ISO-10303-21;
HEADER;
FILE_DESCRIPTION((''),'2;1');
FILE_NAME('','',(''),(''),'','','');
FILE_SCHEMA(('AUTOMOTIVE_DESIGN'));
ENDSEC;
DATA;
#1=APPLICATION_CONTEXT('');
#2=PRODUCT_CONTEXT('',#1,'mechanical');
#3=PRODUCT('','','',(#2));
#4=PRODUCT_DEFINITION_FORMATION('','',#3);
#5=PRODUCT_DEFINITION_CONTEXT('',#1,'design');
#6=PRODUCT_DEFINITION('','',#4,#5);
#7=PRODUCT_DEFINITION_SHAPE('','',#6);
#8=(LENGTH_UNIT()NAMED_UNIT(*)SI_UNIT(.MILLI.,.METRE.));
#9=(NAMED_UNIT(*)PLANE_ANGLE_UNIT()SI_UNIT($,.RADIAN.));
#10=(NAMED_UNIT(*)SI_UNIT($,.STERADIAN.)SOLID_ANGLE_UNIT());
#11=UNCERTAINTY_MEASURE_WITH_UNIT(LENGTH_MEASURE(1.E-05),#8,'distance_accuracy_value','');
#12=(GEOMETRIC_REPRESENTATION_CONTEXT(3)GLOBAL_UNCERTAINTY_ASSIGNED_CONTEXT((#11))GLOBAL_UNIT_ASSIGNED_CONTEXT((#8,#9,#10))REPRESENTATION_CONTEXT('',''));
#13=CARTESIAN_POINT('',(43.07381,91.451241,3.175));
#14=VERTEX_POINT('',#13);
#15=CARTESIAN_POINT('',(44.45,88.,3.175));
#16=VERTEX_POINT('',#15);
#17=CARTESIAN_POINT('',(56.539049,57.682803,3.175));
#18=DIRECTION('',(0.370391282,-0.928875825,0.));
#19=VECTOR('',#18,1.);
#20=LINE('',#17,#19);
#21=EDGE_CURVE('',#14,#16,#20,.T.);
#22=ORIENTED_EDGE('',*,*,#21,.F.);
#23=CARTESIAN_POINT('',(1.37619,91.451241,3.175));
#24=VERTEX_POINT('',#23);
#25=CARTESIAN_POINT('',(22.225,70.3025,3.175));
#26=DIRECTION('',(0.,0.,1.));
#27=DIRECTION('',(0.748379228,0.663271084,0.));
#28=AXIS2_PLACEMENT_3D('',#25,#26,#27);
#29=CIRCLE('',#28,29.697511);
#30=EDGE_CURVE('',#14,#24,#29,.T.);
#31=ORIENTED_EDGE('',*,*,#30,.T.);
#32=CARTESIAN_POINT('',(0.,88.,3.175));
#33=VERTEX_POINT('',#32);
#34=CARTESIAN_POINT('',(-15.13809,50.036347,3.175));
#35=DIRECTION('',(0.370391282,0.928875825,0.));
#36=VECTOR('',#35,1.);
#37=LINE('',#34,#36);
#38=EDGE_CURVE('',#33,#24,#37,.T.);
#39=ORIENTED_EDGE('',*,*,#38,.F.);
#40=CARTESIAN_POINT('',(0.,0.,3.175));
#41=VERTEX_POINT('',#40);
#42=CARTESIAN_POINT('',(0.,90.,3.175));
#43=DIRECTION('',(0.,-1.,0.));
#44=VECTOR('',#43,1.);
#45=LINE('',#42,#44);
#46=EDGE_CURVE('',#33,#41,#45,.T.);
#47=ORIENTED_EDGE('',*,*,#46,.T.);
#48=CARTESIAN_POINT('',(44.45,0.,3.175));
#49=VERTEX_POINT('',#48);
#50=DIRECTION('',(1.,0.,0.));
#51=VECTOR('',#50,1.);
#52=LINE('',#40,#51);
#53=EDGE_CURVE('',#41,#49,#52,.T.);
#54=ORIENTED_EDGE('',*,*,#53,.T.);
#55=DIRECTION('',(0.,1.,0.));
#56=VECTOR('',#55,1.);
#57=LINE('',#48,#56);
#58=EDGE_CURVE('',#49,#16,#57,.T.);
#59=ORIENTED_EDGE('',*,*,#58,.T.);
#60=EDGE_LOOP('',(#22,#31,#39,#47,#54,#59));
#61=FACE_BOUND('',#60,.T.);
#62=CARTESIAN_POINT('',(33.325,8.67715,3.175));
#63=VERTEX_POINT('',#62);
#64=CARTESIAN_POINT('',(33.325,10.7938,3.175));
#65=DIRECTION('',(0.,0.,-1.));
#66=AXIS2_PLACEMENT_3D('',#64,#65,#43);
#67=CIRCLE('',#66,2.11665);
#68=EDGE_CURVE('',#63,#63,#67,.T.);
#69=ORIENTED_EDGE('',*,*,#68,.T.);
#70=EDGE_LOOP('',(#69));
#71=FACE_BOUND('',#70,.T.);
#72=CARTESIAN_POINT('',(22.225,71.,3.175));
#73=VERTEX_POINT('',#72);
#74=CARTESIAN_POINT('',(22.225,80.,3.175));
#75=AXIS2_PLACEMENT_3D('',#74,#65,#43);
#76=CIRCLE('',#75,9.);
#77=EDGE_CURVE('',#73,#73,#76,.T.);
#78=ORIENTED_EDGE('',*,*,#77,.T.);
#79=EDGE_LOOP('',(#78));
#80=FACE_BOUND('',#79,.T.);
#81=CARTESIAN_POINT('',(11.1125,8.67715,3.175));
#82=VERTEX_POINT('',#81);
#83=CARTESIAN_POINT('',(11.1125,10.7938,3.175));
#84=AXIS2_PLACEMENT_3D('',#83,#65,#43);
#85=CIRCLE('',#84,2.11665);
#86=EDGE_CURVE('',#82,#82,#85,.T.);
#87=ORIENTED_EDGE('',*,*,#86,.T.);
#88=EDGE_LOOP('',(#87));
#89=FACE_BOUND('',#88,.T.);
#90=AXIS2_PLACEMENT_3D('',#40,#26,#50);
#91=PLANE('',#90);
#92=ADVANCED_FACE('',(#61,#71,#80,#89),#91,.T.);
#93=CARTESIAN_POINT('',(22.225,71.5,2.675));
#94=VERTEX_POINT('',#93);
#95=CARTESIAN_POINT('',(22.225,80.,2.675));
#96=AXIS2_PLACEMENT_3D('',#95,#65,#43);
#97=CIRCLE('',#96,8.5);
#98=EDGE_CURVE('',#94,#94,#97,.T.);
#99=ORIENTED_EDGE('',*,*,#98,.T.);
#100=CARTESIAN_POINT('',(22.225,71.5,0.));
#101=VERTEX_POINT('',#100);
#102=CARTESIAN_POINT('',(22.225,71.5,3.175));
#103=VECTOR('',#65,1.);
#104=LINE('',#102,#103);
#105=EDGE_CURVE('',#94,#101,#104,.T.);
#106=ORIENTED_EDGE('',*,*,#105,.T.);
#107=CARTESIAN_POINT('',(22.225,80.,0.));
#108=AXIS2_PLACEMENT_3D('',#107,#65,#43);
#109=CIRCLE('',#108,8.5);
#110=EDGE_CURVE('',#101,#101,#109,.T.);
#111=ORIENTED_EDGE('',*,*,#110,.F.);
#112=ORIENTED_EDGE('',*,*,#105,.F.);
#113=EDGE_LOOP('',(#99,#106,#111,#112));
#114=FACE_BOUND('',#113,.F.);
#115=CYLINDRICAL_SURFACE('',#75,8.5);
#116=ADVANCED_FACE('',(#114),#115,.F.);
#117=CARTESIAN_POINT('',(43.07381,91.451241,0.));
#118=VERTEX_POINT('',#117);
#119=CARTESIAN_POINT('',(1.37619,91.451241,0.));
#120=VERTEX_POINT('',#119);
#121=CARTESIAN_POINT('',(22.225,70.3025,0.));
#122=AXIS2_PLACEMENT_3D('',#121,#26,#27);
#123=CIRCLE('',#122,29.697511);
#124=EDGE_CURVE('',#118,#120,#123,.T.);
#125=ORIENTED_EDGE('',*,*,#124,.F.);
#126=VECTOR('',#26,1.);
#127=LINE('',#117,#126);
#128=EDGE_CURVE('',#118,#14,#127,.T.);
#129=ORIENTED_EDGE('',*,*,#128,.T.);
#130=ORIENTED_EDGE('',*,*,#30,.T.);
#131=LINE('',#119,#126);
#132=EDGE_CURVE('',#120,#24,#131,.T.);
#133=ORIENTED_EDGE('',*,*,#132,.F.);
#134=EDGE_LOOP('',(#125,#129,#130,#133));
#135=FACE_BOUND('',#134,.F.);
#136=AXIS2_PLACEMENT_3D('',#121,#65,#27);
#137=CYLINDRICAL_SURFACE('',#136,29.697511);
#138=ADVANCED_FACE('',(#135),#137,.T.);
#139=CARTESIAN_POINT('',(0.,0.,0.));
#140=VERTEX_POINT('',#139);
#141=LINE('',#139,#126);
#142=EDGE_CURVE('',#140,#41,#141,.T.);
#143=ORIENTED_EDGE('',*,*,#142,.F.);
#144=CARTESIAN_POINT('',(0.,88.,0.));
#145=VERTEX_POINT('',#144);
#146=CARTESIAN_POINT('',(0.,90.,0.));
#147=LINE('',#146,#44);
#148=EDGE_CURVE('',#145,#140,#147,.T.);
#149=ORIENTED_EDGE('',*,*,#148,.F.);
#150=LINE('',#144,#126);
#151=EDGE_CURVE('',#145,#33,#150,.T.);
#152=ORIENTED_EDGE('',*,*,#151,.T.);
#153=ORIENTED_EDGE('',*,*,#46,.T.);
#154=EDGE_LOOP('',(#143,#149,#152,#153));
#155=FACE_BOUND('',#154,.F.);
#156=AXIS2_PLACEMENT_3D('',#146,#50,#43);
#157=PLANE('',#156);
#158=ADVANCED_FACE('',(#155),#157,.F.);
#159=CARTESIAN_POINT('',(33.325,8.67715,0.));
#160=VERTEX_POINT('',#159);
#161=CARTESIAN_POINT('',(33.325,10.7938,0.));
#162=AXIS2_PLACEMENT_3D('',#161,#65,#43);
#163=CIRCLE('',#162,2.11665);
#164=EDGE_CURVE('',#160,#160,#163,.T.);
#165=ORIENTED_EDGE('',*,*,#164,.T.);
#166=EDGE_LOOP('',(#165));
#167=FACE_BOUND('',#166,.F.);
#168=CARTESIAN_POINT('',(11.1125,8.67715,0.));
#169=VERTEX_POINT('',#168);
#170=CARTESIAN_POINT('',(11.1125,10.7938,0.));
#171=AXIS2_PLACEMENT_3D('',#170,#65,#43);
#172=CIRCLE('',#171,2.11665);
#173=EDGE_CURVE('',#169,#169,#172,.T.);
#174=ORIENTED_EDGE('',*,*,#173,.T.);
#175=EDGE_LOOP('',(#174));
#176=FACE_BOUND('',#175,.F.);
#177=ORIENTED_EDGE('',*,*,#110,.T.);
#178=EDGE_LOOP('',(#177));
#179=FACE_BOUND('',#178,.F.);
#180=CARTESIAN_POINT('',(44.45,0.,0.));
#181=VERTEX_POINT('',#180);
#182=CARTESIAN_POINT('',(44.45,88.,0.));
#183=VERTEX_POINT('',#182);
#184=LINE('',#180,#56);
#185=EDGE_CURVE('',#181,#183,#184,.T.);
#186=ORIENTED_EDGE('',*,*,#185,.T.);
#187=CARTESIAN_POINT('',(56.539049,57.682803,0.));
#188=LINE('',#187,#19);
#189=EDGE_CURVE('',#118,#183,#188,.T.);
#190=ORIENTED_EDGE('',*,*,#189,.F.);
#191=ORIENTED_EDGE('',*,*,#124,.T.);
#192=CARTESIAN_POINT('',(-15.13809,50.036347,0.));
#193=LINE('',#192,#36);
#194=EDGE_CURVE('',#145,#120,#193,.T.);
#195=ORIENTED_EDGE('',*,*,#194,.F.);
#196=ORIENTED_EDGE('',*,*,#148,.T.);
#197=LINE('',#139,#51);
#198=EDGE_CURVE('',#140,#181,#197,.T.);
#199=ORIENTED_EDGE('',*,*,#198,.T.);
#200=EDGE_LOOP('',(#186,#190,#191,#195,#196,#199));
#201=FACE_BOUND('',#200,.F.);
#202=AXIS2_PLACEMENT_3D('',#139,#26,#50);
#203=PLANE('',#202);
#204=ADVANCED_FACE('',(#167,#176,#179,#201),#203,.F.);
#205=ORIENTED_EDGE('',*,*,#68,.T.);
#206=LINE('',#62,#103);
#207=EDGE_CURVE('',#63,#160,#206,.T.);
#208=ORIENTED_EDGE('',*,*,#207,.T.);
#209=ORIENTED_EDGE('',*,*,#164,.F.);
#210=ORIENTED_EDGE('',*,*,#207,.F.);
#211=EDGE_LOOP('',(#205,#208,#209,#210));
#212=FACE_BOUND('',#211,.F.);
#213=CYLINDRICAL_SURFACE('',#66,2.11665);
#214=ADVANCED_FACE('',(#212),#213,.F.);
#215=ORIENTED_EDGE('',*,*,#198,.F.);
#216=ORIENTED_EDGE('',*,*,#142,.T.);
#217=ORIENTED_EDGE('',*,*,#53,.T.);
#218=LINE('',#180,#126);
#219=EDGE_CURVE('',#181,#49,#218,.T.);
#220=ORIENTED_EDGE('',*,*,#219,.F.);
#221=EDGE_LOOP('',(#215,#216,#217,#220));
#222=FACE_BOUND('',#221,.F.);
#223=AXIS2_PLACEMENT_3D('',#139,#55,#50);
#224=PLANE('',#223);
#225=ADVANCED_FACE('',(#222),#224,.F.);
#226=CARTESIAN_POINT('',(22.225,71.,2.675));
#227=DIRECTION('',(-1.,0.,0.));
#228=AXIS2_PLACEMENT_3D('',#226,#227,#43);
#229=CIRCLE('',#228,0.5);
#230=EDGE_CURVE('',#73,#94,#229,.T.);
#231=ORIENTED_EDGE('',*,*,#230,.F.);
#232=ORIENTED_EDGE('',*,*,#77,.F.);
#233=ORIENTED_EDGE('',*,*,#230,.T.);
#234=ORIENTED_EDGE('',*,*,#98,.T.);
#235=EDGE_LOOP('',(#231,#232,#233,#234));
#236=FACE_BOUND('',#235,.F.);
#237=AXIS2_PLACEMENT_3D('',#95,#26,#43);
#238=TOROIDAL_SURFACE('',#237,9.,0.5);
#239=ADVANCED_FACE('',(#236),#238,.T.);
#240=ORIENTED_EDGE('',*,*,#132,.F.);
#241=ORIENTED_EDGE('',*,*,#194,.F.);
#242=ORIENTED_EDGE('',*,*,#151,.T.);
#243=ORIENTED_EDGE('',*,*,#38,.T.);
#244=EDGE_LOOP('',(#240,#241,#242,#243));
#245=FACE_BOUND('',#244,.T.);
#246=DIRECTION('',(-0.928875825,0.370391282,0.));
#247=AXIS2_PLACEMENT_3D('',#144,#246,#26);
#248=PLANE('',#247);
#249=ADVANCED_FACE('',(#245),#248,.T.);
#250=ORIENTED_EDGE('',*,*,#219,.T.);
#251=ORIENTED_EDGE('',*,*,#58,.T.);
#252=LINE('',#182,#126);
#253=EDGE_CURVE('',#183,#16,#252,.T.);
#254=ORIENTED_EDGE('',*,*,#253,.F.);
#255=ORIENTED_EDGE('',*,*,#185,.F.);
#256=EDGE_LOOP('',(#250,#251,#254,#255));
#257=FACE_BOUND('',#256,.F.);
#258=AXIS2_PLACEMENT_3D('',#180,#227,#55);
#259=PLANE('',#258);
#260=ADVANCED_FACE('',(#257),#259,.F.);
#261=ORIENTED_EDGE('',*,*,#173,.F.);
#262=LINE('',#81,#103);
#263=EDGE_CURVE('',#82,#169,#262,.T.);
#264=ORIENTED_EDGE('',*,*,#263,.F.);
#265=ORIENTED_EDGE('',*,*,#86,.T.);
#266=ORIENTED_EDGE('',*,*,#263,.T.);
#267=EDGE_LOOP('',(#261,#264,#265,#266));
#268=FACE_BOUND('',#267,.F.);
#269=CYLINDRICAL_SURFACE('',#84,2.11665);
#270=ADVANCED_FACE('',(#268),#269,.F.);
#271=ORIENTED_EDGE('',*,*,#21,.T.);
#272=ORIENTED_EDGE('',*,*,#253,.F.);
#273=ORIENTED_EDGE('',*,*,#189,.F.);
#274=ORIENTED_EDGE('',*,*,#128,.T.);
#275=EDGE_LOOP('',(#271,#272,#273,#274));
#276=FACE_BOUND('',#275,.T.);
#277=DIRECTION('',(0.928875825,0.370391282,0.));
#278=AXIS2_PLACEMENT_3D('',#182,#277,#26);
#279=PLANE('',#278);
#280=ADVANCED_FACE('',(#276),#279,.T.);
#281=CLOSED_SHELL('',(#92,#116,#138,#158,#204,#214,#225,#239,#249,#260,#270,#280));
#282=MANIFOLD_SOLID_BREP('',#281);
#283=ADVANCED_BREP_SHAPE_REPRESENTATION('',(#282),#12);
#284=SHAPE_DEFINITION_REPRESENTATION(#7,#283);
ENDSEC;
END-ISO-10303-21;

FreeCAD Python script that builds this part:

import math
import FreeCAD as App
import Part
import Sketcher

V = App.Vector
Q = App.Units.Quantity


def edges_at(feature, points):
    """Names of the edges that pass closest to the given points."""
    edges = feature.Shape.Edges
    near = lambda p: min(range(len(edges)), key=lambda i: edges[i].distToShape(Part.Vertex(*p))[0])
    return sorted({f"Edge{near(p) + 1}" for p in points})

doc = App.newDocument("Part")
body = doc.addObject("PartDesign::Body", "Body")

# Sketch on XY plane
sketch1 = doc.addObject("Sketcher::SketchObject", "Sketch")
body.addObject(sketch1)
sketch1.AttachmentSupport = (doc.XY_Plane, [""])
sketch1.MapMode = "FlatFace"
sketch1.addGeometry(Part.LineSegment(V(0, 90, 0), V(0, 0, 0)), False)
sketch1.addGeometry(Part.LineSegment(V(0, 0, 0), V(44, 0, 0)), False)
sketch1.addGeometry(Part.LineSegment(V(44, 0, 0), V(44, 90, 0)), False)
sketch1.addGeometry(Part.ArcOfCircle(Part.Circle(V(22, 70, 0), V(0, 0, 1), 30), math.radians(42), math.radians(138)), False)
sketch1.addConstraint(Sketcher.Constraint("Coincident", 0, 2, 1, 1))
sketch1.addConstraint(Sketcher.Constraint("Coincident", 1, 2, 2, 1))
sketch1.addConstraint(Sketcher.Constraint("Coincident", 2, 2, 3, 1))
sketch1.addConstraint(Sketcher.Constraint("Coincident", 3, 2, 0, 1))
sketch1.addConstraint(Sketcher.Constraint("Vertical", 0))
sketch1.addConstraint(Sketcher.Constraint("Horizontal", 1))
sketch1.addConstraint(Sketcher.Constraint("Vertical", 2))
sketch1.addConstraint(Sketcher.Constraint("Coincident", 0, 2, -1, 1))
sketch1.addConstraint(Sketcher.Constraint("Horizontal", 2, 2, 3, 2))
sketch1.addConstraint(Sketcher.Constraint("DistanceY", 0, 2, 0, 1, Q("90 mm")))
sketch1.addConstraint(Sketcher.Constraint("DistanceX", 1, 1, 1, 2, Q("44.45 mm")))
sketch1.addConstraint(Sketcher.Constraint("Radius", 3, Q("29.6975 mm")))
pad1 = doc.addObject("PartDesign::Pad", "Pad")
body.addObject(pad1)
pad1.Profile = sketch1
pad1.Length = 3.175
doc.recompute()

chamfer = doc.addObject("PartDesign::Chamfer", "Chamfer")
body.addObject(chamfer)
chamfer.Base = (pad1, edges_at(pad1, [(44.45, 90, 1.587), (0, 90, 1.587)]))
chamfer.Size = 2

# Sketch on XY plane
sketch2 = doc.addObject("Sketcher::SketchObject", "Sketch001")
body.addObject(sketch2)
sketch2.AttachmentSupport = (doc.XY_Plane, [""])
sketch2.MapMode = "FlatFace"
sketch2.AttachmentOffset = App.Placement(V(0, 0, 3.175), App.Rotation())
sketch2.addGeometry(Part.Circle(V(22, 80, 0), V(0, 0, 1), 8), False)
sketch2.addConstraint(Sketcher.Constraint("Diameter", 0, Q("17 mm")))
sketch2.addConstraint(Sketcher.Constraint("DistanceY", -1, 1, 0, 3, Q("80 mm")))
sketch2.addConstraint(Sketcher.Constraint("DistanceX", -1, 1, 0, 3, Q("22.225 mm")))
doc.recompute()
hole = doc.addObject("PartDesign::Hole", "Hole")
body.addObject(hole)
hole.Profile = sketch2
hole.ThreadType = "None"
hole.Diameter = 17
hole.DepthType = "ThroughAll"
doc.recompute()

fillet = doc.addObject("PartDesign::Fillet", "Fillet")
body.addObject(fillet)
fillet.Base = (hole, edges_at(hole, [(22.225, 88.5, 3.175)]))
fillet.Radius = 0.5

# Sketch on XY plane
sketch3 = doc.addObject("Sketcher::SketchObject", "Sketch002")
body.addObject(sketch3)
sketch3.AttachmentSupport = (doc.XY_Plane, [""])
sketch3.MapMode = "FlatFace"
sketch3.AttachmentOffset = App.Placement(V(0, 0, 3.175), App.Rotation())
sketch3.addGeometry(Part.Circle(V(11.1, 10.8, 0), V(0, 0, 1), 2.1), False)
sketch3.addGeometry(Part.Circle(V(33.3, 10.8, 0), V(0, 0, 1), 2.1), False)
sketch3.addConstraint(Sketcher.Constraint("Equal", 0, 1))
sketch3.addConstraint(Sketcher.Constraint("Horizontal", 0, 3, 1, 3))
sketch3.addConstraint(Sketcher.Constraint("Diameter", 0, Q("4.2333 mm")))
sketch3.addConstraint(Sketcher.Constraint("DistanceX", -1, 1, 1, 3, Q("33.325 mm")))
sketch3.addConstraint(Sketcher.Constraint("DistanceX", -1, 1, 0, 3, Q("11.1125 mm")))
sketch3.addConstraint(Sketcher.Constraint("DistanceY", -1, 1, 0, 3, Q("10.7938 mm")))
doc.recompute()
hole2 = doc.addObject("PartDesign::Hole", "Hole001")
body.addObject(hole2)
hole2.Profile = sketch3
hole2.ThreadType = "None"
hole2.Diameter = 4.2333
hole2.DepthType = "ThroughAll"

doc.recompute()
